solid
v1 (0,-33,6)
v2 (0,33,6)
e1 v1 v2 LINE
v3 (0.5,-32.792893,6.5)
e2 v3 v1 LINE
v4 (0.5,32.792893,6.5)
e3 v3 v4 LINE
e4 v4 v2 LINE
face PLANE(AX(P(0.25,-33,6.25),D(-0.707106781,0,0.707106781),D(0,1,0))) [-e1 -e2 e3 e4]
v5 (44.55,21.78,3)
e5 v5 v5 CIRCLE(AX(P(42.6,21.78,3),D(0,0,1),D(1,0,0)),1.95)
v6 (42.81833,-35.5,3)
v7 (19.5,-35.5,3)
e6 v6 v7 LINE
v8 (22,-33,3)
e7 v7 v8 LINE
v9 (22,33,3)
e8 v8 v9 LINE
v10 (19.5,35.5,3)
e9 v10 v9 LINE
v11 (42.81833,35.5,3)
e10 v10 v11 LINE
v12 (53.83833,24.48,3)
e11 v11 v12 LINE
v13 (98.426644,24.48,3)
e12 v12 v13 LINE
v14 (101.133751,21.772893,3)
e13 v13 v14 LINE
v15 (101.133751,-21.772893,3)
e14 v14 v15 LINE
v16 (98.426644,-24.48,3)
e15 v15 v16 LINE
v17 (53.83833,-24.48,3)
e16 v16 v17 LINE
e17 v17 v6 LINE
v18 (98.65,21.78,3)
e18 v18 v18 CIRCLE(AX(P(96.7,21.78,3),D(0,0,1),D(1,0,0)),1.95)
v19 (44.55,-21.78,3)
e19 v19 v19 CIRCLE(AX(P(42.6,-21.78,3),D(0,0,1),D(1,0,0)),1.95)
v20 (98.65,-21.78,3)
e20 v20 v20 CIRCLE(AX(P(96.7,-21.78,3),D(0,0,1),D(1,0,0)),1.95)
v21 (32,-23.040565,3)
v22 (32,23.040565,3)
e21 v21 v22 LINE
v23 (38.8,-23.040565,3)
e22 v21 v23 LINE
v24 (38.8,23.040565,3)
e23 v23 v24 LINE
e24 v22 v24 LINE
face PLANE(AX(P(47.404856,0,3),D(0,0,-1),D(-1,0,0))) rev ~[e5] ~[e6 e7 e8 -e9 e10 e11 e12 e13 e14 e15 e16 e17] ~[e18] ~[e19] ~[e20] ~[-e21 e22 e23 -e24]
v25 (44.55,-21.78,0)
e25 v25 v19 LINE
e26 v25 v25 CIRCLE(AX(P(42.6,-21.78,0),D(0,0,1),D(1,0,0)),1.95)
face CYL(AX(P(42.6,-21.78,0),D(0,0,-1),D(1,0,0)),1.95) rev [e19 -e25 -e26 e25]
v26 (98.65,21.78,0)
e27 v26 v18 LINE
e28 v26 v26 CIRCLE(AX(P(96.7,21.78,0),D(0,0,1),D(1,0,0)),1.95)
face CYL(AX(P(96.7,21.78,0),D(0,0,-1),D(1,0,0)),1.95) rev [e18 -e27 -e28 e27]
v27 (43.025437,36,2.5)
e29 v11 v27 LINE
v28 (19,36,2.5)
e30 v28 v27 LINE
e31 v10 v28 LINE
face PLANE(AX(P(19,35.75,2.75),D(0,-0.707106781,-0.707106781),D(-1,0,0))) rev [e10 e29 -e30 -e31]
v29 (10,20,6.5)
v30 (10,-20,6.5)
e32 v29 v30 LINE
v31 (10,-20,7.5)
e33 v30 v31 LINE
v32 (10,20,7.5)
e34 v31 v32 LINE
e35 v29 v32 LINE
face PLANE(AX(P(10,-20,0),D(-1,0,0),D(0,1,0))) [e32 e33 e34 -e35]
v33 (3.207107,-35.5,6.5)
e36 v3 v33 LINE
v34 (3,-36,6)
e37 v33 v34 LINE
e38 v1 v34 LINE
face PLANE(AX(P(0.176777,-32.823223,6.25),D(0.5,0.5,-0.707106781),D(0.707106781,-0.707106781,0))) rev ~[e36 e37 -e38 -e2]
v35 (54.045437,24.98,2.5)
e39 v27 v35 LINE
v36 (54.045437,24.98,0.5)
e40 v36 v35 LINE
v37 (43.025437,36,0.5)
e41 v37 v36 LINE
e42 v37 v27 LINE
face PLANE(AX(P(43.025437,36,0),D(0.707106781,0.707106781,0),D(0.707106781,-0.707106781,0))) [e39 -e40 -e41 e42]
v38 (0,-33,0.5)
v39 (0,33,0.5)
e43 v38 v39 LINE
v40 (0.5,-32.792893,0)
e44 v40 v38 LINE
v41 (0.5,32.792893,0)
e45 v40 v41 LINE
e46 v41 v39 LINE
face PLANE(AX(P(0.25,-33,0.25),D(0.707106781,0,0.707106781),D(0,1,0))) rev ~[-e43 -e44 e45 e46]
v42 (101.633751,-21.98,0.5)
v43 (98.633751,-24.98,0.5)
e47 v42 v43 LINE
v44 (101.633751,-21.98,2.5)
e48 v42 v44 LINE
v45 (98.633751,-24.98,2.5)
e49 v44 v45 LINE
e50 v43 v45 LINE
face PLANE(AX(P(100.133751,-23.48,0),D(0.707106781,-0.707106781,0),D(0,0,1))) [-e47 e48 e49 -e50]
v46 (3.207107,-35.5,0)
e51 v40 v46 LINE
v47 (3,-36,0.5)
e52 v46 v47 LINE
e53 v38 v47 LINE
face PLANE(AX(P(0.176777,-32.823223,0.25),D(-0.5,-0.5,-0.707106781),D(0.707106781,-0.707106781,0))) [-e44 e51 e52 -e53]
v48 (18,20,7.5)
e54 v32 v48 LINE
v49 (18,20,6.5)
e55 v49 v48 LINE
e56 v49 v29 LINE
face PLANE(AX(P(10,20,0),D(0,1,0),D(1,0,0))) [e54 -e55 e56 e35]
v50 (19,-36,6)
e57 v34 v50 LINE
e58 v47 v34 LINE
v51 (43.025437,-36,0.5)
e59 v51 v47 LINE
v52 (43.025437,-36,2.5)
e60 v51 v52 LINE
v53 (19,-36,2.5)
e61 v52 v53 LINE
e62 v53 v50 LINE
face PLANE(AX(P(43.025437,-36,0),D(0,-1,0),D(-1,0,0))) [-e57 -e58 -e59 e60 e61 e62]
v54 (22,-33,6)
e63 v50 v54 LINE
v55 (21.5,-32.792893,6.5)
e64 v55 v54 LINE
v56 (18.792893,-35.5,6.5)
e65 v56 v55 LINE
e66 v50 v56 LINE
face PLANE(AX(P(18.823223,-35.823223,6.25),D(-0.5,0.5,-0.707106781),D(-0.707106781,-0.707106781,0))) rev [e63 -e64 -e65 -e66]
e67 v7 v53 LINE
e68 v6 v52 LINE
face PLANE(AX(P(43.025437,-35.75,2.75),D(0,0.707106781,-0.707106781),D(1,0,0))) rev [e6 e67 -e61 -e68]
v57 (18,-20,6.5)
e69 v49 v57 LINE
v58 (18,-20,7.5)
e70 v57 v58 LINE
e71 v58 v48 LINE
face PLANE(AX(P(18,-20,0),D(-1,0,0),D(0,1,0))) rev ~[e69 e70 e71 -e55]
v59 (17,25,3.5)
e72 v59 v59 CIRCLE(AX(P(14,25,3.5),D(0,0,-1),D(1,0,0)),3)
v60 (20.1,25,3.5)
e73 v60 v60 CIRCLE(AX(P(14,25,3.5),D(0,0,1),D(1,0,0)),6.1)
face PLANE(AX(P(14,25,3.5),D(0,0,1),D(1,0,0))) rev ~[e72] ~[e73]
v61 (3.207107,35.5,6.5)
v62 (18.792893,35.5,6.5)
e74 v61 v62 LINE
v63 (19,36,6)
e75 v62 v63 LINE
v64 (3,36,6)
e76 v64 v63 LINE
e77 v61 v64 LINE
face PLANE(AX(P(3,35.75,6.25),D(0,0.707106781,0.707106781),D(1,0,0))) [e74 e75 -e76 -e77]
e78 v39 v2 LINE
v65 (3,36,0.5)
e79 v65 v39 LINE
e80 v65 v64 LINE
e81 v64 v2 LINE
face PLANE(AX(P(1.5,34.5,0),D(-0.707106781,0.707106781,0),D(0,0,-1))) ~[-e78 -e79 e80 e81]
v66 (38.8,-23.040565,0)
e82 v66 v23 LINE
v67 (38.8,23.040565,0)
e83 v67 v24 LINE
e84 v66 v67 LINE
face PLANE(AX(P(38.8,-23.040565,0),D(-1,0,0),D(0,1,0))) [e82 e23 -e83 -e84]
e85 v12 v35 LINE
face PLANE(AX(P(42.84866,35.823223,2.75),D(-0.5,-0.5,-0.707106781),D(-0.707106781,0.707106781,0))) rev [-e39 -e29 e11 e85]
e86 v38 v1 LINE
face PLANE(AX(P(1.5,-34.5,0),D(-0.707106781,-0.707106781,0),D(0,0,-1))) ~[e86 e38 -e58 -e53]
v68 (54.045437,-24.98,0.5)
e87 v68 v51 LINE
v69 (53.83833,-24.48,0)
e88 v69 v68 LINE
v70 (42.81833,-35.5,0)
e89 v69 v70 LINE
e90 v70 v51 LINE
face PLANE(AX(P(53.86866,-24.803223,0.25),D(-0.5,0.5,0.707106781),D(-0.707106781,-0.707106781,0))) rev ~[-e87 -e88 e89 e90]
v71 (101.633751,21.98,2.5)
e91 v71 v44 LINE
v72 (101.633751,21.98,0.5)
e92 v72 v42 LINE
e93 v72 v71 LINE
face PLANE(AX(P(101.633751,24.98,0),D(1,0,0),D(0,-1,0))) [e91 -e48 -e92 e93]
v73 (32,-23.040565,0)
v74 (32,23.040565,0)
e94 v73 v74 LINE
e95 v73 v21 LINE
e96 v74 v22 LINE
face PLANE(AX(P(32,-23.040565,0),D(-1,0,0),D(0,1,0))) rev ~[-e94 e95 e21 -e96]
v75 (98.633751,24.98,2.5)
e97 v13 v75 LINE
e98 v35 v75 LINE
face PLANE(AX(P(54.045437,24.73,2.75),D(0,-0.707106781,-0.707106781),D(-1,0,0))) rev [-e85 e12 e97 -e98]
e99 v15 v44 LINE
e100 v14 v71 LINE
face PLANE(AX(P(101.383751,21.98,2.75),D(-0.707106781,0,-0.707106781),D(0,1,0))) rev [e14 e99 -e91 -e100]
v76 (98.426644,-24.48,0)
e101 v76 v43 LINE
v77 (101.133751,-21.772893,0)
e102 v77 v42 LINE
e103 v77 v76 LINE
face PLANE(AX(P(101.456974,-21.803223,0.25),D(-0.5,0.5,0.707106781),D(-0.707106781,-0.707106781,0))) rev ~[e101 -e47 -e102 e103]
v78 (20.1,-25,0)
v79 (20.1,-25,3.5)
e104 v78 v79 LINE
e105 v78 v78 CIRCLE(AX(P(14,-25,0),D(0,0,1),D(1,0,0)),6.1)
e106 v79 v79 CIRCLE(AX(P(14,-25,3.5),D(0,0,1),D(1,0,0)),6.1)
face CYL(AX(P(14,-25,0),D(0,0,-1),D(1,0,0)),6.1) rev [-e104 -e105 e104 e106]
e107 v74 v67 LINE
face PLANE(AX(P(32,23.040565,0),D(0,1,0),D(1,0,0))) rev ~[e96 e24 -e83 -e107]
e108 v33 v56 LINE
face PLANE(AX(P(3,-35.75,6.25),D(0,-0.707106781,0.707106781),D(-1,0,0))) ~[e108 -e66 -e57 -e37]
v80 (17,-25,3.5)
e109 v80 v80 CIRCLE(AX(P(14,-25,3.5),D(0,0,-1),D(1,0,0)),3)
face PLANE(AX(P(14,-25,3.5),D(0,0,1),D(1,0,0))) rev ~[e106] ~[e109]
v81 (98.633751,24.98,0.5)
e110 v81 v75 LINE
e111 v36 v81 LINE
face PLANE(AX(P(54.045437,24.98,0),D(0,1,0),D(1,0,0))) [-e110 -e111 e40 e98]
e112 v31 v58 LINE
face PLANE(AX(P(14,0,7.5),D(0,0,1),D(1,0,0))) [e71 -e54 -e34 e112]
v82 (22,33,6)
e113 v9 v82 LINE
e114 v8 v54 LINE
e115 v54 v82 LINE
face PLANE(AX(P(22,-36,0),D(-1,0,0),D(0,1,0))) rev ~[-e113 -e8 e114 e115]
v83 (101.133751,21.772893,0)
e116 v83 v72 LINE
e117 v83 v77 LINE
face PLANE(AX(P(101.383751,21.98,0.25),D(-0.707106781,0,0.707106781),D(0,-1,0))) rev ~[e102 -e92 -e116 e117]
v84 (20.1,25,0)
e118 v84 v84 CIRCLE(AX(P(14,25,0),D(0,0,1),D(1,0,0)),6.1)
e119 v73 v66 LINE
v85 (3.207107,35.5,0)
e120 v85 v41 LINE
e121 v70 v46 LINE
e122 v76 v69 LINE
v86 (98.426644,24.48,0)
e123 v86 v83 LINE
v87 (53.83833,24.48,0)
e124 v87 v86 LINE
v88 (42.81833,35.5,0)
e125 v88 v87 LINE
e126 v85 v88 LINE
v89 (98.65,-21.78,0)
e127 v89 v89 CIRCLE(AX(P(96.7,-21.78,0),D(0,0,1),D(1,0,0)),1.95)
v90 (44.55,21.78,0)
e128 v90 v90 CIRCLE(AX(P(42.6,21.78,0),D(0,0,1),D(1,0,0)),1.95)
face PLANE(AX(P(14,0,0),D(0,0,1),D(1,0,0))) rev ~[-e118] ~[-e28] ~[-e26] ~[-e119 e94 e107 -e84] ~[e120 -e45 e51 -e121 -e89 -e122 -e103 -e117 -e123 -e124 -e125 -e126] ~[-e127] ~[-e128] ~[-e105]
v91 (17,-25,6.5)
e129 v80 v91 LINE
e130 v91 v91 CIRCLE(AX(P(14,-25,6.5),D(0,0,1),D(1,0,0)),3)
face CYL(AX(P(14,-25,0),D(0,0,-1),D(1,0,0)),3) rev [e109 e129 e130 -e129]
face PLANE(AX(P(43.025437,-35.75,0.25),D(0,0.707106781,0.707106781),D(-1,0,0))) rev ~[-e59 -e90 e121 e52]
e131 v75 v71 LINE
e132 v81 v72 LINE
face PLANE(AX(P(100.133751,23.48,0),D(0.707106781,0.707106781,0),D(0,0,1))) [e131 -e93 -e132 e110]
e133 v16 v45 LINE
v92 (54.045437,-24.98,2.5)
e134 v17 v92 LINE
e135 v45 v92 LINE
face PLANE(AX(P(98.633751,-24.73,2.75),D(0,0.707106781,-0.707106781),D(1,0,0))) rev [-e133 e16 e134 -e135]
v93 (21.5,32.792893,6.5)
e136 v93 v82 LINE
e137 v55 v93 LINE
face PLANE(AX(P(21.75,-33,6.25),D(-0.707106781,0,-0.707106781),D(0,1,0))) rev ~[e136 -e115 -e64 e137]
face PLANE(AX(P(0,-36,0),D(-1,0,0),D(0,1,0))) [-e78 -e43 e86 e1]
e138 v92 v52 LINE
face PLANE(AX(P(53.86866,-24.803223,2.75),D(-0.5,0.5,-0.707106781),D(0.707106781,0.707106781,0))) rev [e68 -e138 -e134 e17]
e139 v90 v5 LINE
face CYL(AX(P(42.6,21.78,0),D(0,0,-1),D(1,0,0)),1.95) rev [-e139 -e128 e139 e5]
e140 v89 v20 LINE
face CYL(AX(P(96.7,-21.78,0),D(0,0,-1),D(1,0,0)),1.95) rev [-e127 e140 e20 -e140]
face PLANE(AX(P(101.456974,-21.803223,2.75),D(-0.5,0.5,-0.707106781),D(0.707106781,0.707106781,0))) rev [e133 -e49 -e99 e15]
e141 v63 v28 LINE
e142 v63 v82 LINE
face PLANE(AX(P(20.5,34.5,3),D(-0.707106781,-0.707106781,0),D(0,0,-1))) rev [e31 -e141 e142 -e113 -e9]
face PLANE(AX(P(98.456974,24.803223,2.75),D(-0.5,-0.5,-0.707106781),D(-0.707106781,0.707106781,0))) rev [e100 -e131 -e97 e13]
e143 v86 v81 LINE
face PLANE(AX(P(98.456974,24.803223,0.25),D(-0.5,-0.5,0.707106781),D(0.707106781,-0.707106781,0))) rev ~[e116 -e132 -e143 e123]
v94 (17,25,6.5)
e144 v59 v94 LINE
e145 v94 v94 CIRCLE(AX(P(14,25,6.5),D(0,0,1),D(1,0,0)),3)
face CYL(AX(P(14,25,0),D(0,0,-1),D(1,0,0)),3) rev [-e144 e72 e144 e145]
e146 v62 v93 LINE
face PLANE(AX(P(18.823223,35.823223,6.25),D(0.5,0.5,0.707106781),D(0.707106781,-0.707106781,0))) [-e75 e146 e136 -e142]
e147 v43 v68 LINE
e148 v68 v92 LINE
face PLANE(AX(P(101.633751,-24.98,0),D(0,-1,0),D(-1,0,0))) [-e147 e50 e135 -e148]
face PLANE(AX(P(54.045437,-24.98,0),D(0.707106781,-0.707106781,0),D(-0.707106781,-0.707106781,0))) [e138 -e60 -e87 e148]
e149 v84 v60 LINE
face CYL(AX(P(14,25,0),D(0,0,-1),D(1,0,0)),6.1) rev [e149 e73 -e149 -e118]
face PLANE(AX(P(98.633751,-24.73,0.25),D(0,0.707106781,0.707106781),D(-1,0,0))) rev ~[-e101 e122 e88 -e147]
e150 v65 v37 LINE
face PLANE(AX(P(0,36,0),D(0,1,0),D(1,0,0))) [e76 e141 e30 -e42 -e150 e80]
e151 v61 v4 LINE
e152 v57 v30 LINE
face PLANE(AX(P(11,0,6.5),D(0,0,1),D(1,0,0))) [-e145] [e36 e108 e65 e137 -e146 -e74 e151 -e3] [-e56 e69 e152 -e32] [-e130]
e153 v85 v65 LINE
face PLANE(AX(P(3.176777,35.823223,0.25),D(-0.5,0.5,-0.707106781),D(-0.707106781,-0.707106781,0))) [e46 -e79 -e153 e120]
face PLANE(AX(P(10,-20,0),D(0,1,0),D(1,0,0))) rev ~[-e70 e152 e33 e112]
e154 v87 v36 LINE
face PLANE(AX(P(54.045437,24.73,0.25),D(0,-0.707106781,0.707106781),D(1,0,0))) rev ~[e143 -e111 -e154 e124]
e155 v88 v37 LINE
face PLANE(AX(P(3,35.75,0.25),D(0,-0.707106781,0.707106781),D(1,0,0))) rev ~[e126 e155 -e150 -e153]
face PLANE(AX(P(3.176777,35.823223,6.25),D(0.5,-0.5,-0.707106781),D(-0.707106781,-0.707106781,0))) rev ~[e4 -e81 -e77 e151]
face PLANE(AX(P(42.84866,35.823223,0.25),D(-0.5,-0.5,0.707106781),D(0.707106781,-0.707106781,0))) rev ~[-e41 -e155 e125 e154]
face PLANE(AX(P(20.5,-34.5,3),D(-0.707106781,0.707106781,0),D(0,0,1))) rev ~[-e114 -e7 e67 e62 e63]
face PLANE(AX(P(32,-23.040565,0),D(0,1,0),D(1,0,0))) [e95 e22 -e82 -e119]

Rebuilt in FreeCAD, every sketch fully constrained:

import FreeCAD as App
import Part
import Sketcher

V = App.Vector
Q = App.Units.Quantity


def edges_at(feature, points):
    """Names of the edges that pass closest to the given points."""
    edges = feature.Shape.Edges
    near = lambda p: min(range(len(edges)), key=lambda i: edges[i].distToShape(Part.Vertex(*p))[0])
    return sorted({f"Edge{near(p) + 1}" for p in points})


def add_polygon(sketch, points):
    """Adds a closed chain of lines whose ends are joined by coincident constraints."""
    first, n = sketch.GeometryCount, len(points)
    for a, b in zip(points, points[1:] + points[:1]):
        sketch.addGeometry(Part.LineSegment(App.Vector(*a, 0), App.Vector(*b, 0)), False)
    for i in range(n):
        sketch.addConstraint(Sketcher.Constraint("Coincident", first + i, 2, first + (i + 1) % n, 1))

doc = App.newDocument("Part")
params = doc.addObject("Spreadsheet::Sheet", "Params")
for row, (alias, value) in enumerate([
    ("sketch1_diameter", "3.9 mm"),
    ("sketch1_height", "72 mm"),
    ("sketch1_width", "6.8 mm"),
    ("sketch1_height2", "49.96 mm"),
    ("pad1_length", "3 mm"),
    ("sketch2_width", "22 mm"),
    ("sketch2_height", "72 mm"),
    ("pad2_length", "6.5 mm"),
    ("sketch3_width", "8 mm"),
    ("sketch3_height", "40 mm"),
    ("pad3_length", "7.5 mm"),
    ("sketch4_diameter", "12.2 mm"),
    ("pocket1_length", "3.5 mm"),
    ("sketch5_diameter", "6 mm"),
    ("pocket2_length", "6.5 mm"),
    ("chamfer_size", "3 mm"),
    ("chamfer2_size", "0.5 mm"),
], start=1):
    params.set(f"A{row}", alias)
    params.set(f"B{row}", "=" + value)
    params.setAlias(f"B{row}", alias)

body = doc.addObject("PartDesign::Body", "Body")

# Sketch on XY plane
sketch1 = body.newObject("Sketcher::SketchObject", "Sketch")
sketch1.AttachmentSupport = (doc.getObject("XY_Plane"), [""])
sketch1.MapMode = "FlatFace"
add_polygon(sketch1, [(101.6, 25), (54, 25), (43, 36), (0, 36), (0, -36), (43, -36), (54, -25), (101.6, -25)])  # lines 0-7
sketch1.addGeometry(Part.Circle(V(96.7, -21.8, 0), V(0, 0, 1), 1.9), False)  # 8
sketch1.addGeometry(Part.Circle(V(42.6, -21.8, 0), V(0, 0, 1), 1.9), False)  # 9
sketch1.addGeometry(Part.Circle(V(96.7, 21.8, 0), V(0, 0, 1), 1.9), False)  # 10
add_polygon(sketch1, [(32, -23), (32, 23), (38.8, 23), (38.8, -23)])  # lines 11-14
sketch1.addGeometry(Part.Circle(V(42.6, 21.8, 0), V(0, 0, 1), 1.9), False)  # 15
sketch1.addConstraint([
    Sketcher.Constraint("Horizontal", 0),
    Sketcher.Constraint("Horizontal", 2),
    Sketcher.Constraint("Vertical", 3),
    Sketcher.Constraint("Horizontal", 4),
    Sketcher.Constraint("Horizontal", 6),
    Sketcher.Constraint("Vertical", 7),
    Sketcher.Constraint("Vertical", 11),
    Sketcher.Constraint("Horizontal", 12),
    Sketcher.Constraint("Vertical", 13),
    Sketcher.Constraint("Horizontal", 14),
    Sketcher.Constraint("Equal", 8, 9),
    Sketcher.Constraint("Equal", 9, 10),
    Sketcher.Constraint("Equal", 10, 15),
    Sketcher.Constraint("Symmetric", 2, 2, 3, 2, -1, 1),
    Sketcher.Constraint("Symmetric", 8, 3, 10, 3, -1),
    Sketcher.Constraint("Symmetric", 9, 3, 15, 3, -1),
    Sketcher.Constraint("Symmetric", 0, 2, 5, 2, -1),
    Sketcher.Constraint("Perpendicular", 1, 5),
    Sketcher.Constraint("Horizontal", 8, 3, 9, 3),
    Sketcher.Constraint("Vertical", 1, 2, 4, 2),
    Sketcher.Constraint("Diameter", 8, Q("3.9 mm")),
    Sketcher.Constraint("DistanceY", 3, 2, 3, 1, Q("72 mm")),
    Sketcher.Constraint("DistanceX", 12, 1, 12, 2, Q("6.8 mm")),
    Sketcher.Constraint("DistanceX", -1, 1, 11, 2, Q("32 mm")),
    Sketcher.Constraint("DistanceY", 7, 1, 7, 2, Q("49.96 mm")),
    Sketcher.Constraint("DistanceX", -1, 1, 8, 3, Q("96.7 mm")),
    Sketcher.Constraint("DistanceX", -1, 1, 9, 3, Q("42.6 mm")),
    Sketcher.Constraint("DistanceY", 15, 3, 0, 2, Q("3.2 mm")),
    Sketcher.Constraint("DistanceY", 11, 1, 11, 2, Q("46.08113 mm")),
    Sketcher.Constraint("DistanceX", 0, 2, 0, 1, Q("47.588314 mm")),
    Sketcher.Constraint("DistanceX", 2, 2, 2, 1, Q("43.025437 mm")),
    Sketcher.Constraint("DistanceY", -1, 1, 11, 2, Q("23.040565 mm")),
])
sketch1.setExpression("Constraints[32]", "Params.sketch1_diameter")
sketch1.setExpression("Constraints[33]", "Params.sketch1_height")
sketch1.setExpression("Constraints[34]", "Params.sketch1_width")
sketch1.setExpression("Constraints[36]", "Params.sketch1_height2")
pad1 = body.newObject("PartDesign::Pad", "Pad")
pad1.Profile = sketch1
pad1.setExpression("Length", "Params.pad1_length")

# Sketch on XY plane
sketch2 = body.newObject("Sketcher::SketchObject", "Sketch001")
sketch2.AttachmentSupport = (doc.getObject("XY_Plane"), [""])
sketch2.MapMode = "FlatFace"
add_polygon(sketch2, [(0, 36), (0, -36), (22, -36), (22, 36)])  # lines 0-3
sketch2.addConstraint([
    Sketcher.Constraint("Vertical", 0),
    Sketcher.Constraint("Horizontal", 1),
    Sketcher.Constraint("Vertical", 2),
    Sketcher.Constraint("Horizontal", 3),
    Sketcher.Constraint("Symmetric", 0, 2, 3, 2, -1, 1),
    Sketcher.Constraint("DistanceX", 1, 1, 1, 2, Q("22 mm")),
    Sketcher.Constraint("DistanceY", 0, 2, 0, 1, Q("72 mm")),
])
sketch2.setExpression("Constraints[9]", "Params.sketch2_width")
sketch2.setExpression("Constraints[10]", "Params.sketch2_height")
pad2 = body.newObject("PartDesign::Pad", "Pad001")
pad2.Profile = sketch2
pad2.setExpression("Length", "Params.pad2_length")

# Sketch on XY plane
sketch3 = body.newObject("Sketcher::SketchObject", "Sketch002")
sketch3.AttachmentSupport = (doc.getObject("XY_Plane"), [""])
sketch3.MapMode = "FlatFace"
add_polygon(sketch3, [(10, 20), (10, -20), (18, -20), (18, 20)])  # lines 0-3
sketch3.addConstraint([
    Sketcher.Constraint("Vertical", 0),
    Sketcher.Constraint("Horizontal", 1),
    Sketcher.Constraint("Vertical", 2),
    Sketcher.Constraint("Horizontal", 3),
    Sketcher.Constraint("DistanceX", 1, 1, 1, 2, Q("8 mm")),
    Sketcher.Constraint("DistanceY", 0, 2, 0, 1, Q("40 mm")),
    Sketcher.Constraint("DistanceX", -1, 1, 0, 2, Q("10 mm")),
    Sketcher.Constraint("DistanceY", 0, 2, -1, 1, Q("20 mm")),
])
sketch3.setExpression("Constraints[8]", "Params.sketch3_width")
sketch3.setExpression("Constraints[9]", "Params.sketch3_height")
pad3 = body.newObject("PartDesign::Pad", "Pad002")
pad3.Profile = sketch3
pad3.setExpression("Length", "Params.pad3_length")

# Sketch on XY plane
sketch4 = body.newObject("Sketcher::SketchObject", "Sketch003")
sketch4.AttachmentSupport = (doc.getObject("XY_Plane"), [""])
sketch4.MapMode = "FlatFace"
sketch4.addGeometry([
    Part.Circle(V(14, 25, 0), V(0, 0, 1), 6),
    Part.Circle(V(14, -25, 0), V(0, 0, 1), 6),
], False)
sketch4.addConstraint([
    Sketcher.Constraint("Equal", 0, 1),
    Sketcher.Constraint("Symmetric", 0, 3, 1, 3, -1),
    Sketcher.Constraint("Diameter", 0, Q("12.2 mm")),
    Sketcher.Constraint("DistanceX", -1, 1, 0, 3, Q("14 mm")),
    Sketcher.Constraint("DistanceY", -1, 1, 0, 3, Q("25 mm")),
])
sketch4.setExpression("Constraints[2]", "Params.sketch4_diameter")
pocket1 = body.newObject("PartDesign::Pocket", "Pocket")
pocket1.Profile = sketch4
pocket1.setExpression("Length", "Params.pocket1_length")
pocket1.Reversed = True

# Sketch on XY plane
sketch5 = body.newObject("Sketcher::SketchObject", "Sketch004")
sketch5.AttachmentSupport = (doc.getObject("XY_Plane"), [""])
sketch5.MapMode = "FlatFace"
sketch5.addGeometry([
    Part.Circle(V(14, 25, 0), V(0, 0, 1), 3),
    Part.Circle(V(14, -25, 0), V(0, 0, 1), 3),
], False)
sketch5.addConstraint([
    Sketcher.Constraint("Equal", 0, 1),
    Sketcher.Constraint("Symmetric", 0, 3, 1, 3, -1),
    Sketcher.Constraint("Diameter", 0, Q("6 mm")),
    Sketcher.Constraint("DistanceX", -1, 1, 0, 3, Q("14 mm")),
    Sketcher.Constraint("DistanceY", -1, 1, 0, 3, Q("25 mm")),
])
sketch5.setExpression("Constraints[2]", "Params.sketch5_diameter")
pocket2 = body.newObject("PartDesign::Pocket", "Pocket001")
pocket2.Profile = sketch5
pocket2.setExpression("Length", "Params.pocket2_length")
pocket2.Reversed = True
doc.recompute()

chamfer = body.newObject("PartDesign::Chamfer", "Chamfer")
chamfer.Base = (pocket2, edges_at(pocket2, [
    (101.634, -24.98, 1.5),
    (101.634, 24.98, 1.5),
    (22, 36, 4.75),
    (0, 36, 3.25),
    (0, 36, 3.25),
    (0, -36, 3.25),
    (0, -36, 3.25),
    (22, -36, 4.75),
]))
chamfer.setExpression("Size", "Params.chamfer_size")
doc.recompute()

chamfer2 = body.newObject("PartDesign::Chamfer", "Chamfer001")
chamfer2.Base = (chamfer, edges_at(chamfer, [
    (48.535, 30.49, 3),
    (76.34, 24.98, 3),
    (100.134, 23.48, 3),
    (101.634, 0, 3),
    (100.134, -23.48, 3),
    (76.34, -24.98, 3),
    (76.34, -24.98, 0),
    (48.535, -30.49, 3),
    (48.535, -30.49, 0),
    (23.013, -36, 0),
    (31.013, -36, 3),
    (1.5, -34.5, 0),
    (0, 0, 0),
    (1.5, 34.5, 6.5),
    (31.013, 36, 3),
    (11, 36, 6.5),
    (1.5, 34.5, 0),
    (23.013, 36, 0),
    (100.134, -23.48, 0),
    (76.34, 24.98, 0),
    (22, 0, 6.5),
    (44.55, 21.78, 1.5),
    (20.5, 34.5, 6.5),
    (31.013, -36, 3),
    (0, 0, 6.5),
    (23.013, -36, 0),
    (31.013, 36, 3),
    (23.013, 36, 0),
    (48.535, 30.49, 0),
    (100.134, 23.48, 0),
    (101.634, 0, 0),
    (20.5, -34.5, 6.5),
    (11, -36, 6.5),
    (1.5, -34.5, 6.5),
]))
chamfer2.setExpression("Size", "Params.chamfer2_size")

doc.recompute()
